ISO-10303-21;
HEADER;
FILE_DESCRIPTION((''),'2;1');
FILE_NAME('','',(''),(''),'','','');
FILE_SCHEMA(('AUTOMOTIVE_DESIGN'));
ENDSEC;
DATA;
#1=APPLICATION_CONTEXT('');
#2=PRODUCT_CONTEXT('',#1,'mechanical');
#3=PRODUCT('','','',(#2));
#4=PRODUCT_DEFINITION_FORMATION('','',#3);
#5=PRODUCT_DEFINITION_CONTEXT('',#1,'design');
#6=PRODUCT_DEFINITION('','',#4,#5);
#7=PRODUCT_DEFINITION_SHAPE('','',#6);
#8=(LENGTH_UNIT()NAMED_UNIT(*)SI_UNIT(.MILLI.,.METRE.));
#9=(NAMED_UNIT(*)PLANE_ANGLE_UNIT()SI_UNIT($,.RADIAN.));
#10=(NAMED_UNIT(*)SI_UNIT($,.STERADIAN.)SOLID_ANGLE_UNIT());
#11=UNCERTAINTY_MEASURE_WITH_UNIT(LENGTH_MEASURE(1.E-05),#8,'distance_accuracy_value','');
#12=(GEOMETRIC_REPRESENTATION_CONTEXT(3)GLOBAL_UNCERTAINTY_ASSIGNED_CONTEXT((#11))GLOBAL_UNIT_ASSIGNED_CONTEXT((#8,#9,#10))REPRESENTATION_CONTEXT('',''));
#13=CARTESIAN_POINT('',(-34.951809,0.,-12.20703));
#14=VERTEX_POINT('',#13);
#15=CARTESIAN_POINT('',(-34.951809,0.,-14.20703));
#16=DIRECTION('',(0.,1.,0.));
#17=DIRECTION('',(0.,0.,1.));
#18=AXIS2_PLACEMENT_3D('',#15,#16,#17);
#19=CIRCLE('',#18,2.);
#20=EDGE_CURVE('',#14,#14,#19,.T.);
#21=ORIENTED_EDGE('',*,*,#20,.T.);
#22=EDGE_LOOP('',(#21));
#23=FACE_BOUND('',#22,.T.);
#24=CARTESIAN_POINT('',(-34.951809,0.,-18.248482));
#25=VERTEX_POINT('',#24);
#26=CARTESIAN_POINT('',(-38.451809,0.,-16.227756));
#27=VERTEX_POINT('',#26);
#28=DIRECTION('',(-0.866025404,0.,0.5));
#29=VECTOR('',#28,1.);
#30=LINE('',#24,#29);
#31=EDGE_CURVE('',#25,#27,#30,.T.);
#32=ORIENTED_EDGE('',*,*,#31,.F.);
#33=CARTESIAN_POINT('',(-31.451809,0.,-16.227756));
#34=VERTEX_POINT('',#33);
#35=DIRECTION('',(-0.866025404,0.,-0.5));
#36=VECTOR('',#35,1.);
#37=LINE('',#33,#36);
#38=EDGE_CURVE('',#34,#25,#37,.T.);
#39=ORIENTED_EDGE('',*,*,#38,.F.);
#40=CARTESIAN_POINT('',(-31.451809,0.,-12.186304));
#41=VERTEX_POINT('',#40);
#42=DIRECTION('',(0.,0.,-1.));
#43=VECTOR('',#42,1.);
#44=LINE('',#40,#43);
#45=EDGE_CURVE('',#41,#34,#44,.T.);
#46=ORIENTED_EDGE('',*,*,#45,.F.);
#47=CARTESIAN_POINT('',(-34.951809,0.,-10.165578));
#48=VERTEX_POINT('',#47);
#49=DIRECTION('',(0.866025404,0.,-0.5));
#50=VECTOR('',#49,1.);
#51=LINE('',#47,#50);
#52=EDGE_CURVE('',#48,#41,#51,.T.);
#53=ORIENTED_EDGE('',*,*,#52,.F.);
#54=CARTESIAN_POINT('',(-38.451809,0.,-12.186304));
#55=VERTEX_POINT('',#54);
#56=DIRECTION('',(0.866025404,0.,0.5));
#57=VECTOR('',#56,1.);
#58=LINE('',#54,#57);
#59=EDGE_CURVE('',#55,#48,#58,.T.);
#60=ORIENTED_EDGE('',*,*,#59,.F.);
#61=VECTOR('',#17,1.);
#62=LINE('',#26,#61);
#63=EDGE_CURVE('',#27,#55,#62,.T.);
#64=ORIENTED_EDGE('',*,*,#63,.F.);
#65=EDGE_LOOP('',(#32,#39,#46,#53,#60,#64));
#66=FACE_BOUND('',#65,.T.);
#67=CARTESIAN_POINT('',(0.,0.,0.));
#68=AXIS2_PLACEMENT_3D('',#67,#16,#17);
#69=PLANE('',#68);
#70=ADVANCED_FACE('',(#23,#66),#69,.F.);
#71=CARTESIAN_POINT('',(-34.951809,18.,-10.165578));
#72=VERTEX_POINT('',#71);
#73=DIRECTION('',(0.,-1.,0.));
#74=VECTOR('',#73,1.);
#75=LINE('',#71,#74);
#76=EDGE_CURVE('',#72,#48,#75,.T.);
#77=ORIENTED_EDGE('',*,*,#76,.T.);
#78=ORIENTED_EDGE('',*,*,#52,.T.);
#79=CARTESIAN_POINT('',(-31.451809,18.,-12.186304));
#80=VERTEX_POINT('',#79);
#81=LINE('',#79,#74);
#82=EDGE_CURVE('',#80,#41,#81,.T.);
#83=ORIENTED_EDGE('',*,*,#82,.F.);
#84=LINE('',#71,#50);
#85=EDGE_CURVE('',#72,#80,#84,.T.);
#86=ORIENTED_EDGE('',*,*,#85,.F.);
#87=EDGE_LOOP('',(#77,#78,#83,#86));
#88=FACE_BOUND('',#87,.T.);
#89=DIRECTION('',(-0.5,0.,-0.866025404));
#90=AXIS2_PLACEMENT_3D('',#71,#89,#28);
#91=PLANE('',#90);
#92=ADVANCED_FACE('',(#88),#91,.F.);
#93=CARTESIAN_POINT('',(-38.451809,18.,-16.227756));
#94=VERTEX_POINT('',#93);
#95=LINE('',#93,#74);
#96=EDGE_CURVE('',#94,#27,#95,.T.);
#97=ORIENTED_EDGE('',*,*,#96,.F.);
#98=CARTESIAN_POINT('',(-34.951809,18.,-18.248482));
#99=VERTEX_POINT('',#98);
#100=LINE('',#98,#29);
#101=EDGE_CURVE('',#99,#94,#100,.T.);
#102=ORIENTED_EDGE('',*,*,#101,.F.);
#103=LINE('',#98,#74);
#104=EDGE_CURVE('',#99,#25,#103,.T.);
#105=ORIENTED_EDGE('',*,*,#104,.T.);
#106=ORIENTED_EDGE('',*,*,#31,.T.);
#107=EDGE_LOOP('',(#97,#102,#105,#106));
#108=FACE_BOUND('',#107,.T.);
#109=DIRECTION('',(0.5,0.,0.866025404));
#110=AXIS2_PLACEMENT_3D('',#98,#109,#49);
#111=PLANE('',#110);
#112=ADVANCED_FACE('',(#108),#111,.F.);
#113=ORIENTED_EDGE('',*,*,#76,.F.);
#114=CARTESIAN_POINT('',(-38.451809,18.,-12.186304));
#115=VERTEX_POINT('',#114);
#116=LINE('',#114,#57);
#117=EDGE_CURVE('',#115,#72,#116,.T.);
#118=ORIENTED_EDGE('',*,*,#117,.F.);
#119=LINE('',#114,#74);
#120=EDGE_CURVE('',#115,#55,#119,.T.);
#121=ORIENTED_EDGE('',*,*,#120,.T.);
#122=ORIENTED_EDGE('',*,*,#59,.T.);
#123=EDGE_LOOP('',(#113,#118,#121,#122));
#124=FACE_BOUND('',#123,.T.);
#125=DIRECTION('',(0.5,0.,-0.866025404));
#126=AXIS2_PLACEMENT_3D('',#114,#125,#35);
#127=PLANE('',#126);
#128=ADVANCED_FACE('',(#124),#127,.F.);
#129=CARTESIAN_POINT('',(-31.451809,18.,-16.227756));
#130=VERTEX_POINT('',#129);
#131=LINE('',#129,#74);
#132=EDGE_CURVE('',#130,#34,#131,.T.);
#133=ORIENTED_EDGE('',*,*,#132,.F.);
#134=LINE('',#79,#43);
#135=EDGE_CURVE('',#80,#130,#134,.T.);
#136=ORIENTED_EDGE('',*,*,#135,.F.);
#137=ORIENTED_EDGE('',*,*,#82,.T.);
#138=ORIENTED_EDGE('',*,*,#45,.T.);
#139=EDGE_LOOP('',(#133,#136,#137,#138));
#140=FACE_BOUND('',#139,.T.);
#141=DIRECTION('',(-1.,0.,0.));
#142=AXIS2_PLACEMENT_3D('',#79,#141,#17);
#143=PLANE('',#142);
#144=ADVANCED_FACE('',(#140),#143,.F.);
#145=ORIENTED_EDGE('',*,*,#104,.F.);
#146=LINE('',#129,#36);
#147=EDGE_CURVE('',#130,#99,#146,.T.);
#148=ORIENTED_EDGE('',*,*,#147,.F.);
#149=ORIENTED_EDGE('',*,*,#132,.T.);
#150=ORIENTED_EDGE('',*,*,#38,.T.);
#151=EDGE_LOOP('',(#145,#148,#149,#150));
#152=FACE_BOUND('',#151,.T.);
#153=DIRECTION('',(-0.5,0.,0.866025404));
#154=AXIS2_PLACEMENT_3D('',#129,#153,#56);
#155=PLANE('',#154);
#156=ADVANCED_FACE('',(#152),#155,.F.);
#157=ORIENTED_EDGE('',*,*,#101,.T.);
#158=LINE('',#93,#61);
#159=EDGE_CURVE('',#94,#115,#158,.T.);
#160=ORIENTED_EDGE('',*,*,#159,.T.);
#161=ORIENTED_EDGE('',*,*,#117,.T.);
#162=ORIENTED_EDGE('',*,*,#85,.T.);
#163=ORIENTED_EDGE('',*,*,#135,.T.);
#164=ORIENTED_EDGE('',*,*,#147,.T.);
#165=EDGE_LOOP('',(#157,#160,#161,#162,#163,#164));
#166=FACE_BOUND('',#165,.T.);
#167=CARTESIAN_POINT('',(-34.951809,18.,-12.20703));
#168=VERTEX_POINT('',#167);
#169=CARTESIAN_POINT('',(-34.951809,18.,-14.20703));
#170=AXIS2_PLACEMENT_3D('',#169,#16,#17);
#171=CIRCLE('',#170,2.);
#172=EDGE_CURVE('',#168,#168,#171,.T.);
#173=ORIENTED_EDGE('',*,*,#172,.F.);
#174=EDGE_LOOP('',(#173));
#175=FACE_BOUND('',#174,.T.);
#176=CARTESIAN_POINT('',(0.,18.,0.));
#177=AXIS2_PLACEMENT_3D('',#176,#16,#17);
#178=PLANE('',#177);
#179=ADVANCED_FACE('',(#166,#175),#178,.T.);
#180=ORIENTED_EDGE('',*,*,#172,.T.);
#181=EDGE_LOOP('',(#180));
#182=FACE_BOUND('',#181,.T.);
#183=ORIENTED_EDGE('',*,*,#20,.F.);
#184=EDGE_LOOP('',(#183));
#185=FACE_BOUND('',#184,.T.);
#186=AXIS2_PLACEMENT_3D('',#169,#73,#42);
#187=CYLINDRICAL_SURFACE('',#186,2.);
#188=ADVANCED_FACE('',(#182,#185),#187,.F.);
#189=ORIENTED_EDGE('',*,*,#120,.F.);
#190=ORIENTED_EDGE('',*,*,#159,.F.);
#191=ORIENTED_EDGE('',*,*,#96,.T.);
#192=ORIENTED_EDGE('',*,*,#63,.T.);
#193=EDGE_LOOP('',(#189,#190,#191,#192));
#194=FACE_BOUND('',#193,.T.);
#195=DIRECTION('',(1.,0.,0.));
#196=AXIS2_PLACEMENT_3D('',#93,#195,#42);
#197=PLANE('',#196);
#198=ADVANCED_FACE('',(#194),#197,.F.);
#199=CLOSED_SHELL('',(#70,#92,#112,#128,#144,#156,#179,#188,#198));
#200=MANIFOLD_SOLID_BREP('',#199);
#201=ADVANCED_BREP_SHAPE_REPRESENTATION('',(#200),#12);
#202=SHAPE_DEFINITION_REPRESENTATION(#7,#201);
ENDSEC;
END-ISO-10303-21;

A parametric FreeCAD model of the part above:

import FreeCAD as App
import Part
import Sketcher

V = App.Vector
Q = App.Units.Quantity


def add_polygon(sketch, points):
    """Adds a closed chain of lines whose ends are joined by coincident constraints."""
    first, n = sketch.GeometryCount, len(points)
    for a, b in zip(points, points[1:] + points[:1]):
        sketch.addGeometry(Part.LineSegment(App.Vector(*a, 0), App.Vector(*b, 0)), False)
    for i in range(n):
        sketch.addConstraint(Sketcher.Constraint("Coincident", first + i, 2, first + (i + 1) % n, 1))

doc = App.newDocument("Part")
params = doc.addObject("Spreadsheet::Sheet", "Params")
for row, (alias, value) in enumerate([
    ("sketch1_diameter", "4 mm"),
    ("pad1_length", "18 mm"),
], start=1):
    params.set(f"A{row}", alias)
    params.set(f"B{row}", "=" + value)
    params.setAlias(f"B{row}", alias)

body = doc.addObject("PartDesign::Body", "Body")

# Sketch on XZ plane
sketch1 = body.newObject("Sketcher::SketchObject", "Sketch")
sketch1.AttachmentSupport = (doc.getObject("XZ_Plane"), [""])
sketch1.MapMode = "FlatFace"
add_polygon(sketch1, [(-34.951809, -18.248482), (-38.451809, -16.227756), (-38.451809, -12.186304), (-34.951809, -10.165578), (-31.451809, -12.186304), (-31.451809, -16.227756)])  # lines 0-5
sketch1.addGeometry(Part.Circle(V(-34.951809, -14.20703, 0), V(0, 0, 1), 2), False)  # 6
sketch1.addConstraint(Sketcher.Constraint("Vertical", 1))
sketch1.addConstraint(Sketcher.Constraint("Vertical", 4))
sketch1.addConstraint(Sketcher.Constraint("Parallel", 0, 3))
sketch1.addConstraint(Sketcher.Constraint("Parallel", 2, 5))
sketch1.addConstraint(Sketcher.Constraint("Horizontal", 1, 2, 3, 2))
sketch1.addConstraint(Sketcher.Constraint("Horizontal", 0, 2, 4, 2))
sketch1.addConstraint(Sketcher.Constraint("Vertical", 6, 3, 2, 2))
sketch1.addConstraint(Sketcher.Constraint("Vertical", 2, 2, 5, 2))
sketch1.addConstraint(Sketcher.Constraint("Diameter", 6, Q("4 mm")))
sketch1.addConstraint(Sketcher.Constraint("Angle", 0, Q("150 deg")))
sketch1.addConstraint(Sketcher.Constraint("DistanceX", 1, 2, 3, 2, Q("7 mm")))
sketch1.addConstraint(Sketcher.Constraint("DistanceY", 1, 1, 1, 2, Q("4.041452 mm")))
sketch1.addConstraint(Sketcher.Constraint("DistanceX", 6, 3, -1, 1, Q("34.951809 mm")))
sketch1.addConstraint(Sketcher.Constraint("DistanceY", 6, 3, -1, 1, Q("14.20703 mm")))
sketch1.addConstraint(Sketcher.Constraint("DistanceY", 2, 2, -1, 1, Q("10.165578 mm")))
sketch1.setExpression("Constraints[14]", "Params.sketch1_diameter")
pad1 = body.newObject("PartDesign::Pad", "Pad")
pad1.Profile = sketch1
pad1.setExpression("Length", "Params.pad1_length")
pad1.Reversed = True

doc.recompute()
